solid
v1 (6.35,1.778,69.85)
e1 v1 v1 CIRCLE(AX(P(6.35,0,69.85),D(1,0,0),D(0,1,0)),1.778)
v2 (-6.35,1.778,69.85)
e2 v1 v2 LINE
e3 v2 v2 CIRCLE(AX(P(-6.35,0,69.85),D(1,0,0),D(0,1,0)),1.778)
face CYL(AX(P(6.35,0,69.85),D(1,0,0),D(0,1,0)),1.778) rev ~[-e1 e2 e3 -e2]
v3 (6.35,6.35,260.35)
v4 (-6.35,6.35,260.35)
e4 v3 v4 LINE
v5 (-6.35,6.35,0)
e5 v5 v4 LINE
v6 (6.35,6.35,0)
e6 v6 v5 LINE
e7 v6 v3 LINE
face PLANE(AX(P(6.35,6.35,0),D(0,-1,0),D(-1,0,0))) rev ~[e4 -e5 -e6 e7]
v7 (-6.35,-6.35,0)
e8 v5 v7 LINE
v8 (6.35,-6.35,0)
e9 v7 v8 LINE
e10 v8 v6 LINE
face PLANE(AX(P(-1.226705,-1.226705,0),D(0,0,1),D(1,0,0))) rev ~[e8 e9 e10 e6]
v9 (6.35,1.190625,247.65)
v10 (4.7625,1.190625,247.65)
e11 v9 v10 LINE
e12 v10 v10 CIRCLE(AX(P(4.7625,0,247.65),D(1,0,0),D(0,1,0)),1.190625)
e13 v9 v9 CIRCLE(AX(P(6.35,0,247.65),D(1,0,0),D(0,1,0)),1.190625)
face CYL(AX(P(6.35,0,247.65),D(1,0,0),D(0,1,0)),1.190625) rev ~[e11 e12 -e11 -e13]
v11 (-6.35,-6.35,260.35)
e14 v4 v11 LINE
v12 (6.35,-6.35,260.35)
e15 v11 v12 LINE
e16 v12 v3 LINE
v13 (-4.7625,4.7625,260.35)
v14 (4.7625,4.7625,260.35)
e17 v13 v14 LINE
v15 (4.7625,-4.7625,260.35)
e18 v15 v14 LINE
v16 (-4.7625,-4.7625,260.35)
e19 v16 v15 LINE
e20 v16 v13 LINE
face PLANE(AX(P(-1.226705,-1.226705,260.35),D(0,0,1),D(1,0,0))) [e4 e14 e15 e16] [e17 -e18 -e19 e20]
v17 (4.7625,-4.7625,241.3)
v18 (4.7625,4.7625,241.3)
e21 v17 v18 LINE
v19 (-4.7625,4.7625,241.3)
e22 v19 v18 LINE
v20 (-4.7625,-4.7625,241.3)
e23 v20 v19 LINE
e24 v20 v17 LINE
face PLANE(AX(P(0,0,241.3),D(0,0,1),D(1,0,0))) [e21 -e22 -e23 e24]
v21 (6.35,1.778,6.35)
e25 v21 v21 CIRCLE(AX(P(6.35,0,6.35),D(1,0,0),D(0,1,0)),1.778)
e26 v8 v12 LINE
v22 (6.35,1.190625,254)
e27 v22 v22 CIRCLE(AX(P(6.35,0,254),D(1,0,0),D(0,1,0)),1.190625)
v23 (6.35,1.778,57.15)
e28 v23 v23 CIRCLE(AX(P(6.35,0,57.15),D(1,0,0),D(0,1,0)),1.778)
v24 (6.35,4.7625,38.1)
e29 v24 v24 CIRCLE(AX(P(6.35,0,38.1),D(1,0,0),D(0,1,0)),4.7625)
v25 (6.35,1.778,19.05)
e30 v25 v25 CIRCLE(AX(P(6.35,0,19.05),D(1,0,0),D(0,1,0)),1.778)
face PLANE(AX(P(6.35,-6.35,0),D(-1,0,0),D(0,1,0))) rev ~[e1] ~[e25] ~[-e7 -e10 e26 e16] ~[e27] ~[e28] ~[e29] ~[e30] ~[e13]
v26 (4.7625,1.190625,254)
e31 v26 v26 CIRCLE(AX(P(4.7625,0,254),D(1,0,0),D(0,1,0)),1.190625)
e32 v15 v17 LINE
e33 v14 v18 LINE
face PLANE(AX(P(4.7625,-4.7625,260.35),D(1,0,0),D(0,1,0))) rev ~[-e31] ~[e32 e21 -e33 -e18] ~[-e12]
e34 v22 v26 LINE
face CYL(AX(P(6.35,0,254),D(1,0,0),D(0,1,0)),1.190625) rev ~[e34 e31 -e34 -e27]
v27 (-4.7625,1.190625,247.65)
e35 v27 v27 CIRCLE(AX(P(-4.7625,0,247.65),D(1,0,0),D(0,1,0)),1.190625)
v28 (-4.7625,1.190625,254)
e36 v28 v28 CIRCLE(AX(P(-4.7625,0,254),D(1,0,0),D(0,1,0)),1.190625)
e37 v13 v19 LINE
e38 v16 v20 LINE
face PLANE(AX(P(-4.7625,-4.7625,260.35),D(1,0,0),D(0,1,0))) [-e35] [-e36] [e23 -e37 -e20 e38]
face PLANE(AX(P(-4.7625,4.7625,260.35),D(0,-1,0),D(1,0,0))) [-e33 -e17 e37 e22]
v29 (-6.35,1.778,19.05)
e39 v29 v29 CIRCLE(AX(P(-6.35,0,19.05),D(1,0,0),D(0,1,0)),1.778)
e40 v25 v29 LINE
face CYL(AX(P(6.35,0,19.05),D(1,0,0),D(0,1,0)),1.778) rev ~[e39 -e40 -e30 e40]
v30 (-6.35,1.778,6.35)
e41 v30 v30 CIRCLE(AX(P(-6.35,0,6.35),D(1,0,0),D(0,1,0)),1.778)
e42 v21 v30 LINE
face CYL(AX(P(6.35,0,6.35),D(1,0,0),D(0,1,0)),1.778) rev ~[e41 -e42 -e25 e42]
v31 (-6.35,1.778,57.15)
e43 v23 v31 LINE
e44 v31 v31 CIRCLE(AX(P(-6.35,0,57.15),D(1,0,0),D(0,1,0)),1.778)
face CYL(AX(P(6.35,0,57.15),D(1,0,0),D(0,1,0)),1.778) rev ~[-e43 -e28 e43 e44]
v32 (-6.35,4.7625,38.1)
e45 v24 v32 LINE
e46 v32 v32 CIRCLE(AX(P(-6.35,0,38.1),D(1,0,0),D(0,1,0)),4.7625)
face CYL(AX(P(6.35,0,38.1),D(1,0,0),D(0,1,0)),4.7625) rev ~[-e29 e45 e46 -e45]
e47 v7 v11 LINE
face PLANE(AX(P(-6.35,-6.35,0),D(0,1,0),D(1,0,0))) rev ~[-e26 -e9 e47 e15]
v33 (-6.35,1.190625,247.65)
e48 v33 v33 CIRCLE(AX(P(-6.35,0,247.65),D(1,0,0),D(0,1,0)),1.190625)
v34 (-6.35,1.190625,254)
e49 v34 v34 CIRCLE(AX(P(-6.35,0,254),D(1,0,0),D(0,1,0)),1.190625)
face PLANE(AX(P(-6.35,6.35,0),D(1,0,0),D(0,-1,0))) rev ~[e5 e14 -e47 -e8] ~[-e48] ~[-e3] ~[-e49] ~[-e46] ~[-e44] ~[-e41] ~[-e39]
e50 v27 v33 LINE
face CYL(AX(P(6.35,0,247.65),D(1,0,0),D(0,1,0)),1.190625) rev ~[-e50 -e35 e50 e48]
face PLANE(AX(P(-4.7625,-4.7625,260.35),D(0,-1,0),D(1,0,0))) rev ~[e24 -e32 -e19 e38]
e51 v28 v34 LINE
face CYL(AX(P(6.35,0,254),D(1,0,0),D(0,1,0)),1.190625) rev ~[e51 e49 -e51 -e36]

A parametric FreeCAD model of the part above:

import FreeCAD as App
import Part
import Sketcher

V = App.Vector
Q = App.Units.Quantity


def add_polygon(sketch, points):
    """Adds a closed chain of lines whose ends are joined by coincident constraints."""
    first, n = sketch.GeometryCount, len(points)
    for a, b in zip(points, points[1:] + points[:1]):
        sketch.addGeometry(Part.LineSegment(App.Vector(*a, 0), App.Vector(*b, 0)), False)
    for i in range(n):
        sketch.addConstraint(Sketcher.Constraint("Coincident", first + i, 2, first + (i + 1) % n, 1))

doc = App.newDocument("Part")
params = doc.addObject("Spreadsheet::Sheet", "Params")
for row, (alias, value) in enumerate([
    ("sketch1_width", "0.5 in"),
    ("pad1_length", "10.25 in"),
    ("sketch2_diameter", "0.09375 in"),
    ("sketch3_diameter", "0.14 in"),
    ("sketch3_diameter2", "0.375 in"),
    ("sketch4_width", "0.375 in"),
    ("pocket3_length", "0.75 in"),
], start=1):
    params.set(f"A{row}", alias)
    params.set(f"B{row}", "=" + value)
    params.setAlias(f"B{row}", alias)

body = doc.addObject("PartDesign::Body", "Body")

# Sketch on XY plane
sketch1 = body.newObject("Sketcher::SketchObject", "Sketch")
sketch1.AttachmentSupport = (doc.getObject("XY_Plane"), [""])
sketch1.MapMode = "FlatFace"
add_polygon(sketch1, [(-6, 6), (-6, -6), (6, -6), (6, 6)])  # lines 0-3
sketch1.addConstraint(Sketcher.Constraint("Vertical", 0))
sketch1.addConstraint(Sketcher.Constraint("Horizontal", 1))
sketch1.addConstraint(Sketcher.Constraint("Vertical", 2))
sketch1.addConstraint(Sketcher.Constraint("Horizontal", 3))
sketch1.addConstraint(Sketcher.Constraint("Symmetric", 0, 2, 2, 2, -1, 1))
sketch1.addConstraint(Sketcher.Constraint("Equal", 3, 0))
sketch1.addConstraint(Sketcher.Constraint("DistanceX", 1, 1, 1, 2, Q("0.5 in")))
sketch1.setExpression("Constraints[10]", "Params.sketch1_width")
pad1 = body.newObject("PartDesign::Pad", "Pad")
pad1.Profile = sketch1
pad1.setExpression("Length", "Params.pad1_length")

# Sketch on YZ plane
sketch2 = body.newObject("Sketcher::SketchObject", "Sketch001")
sketch2.AttachmentSupport = (doc.getObject("YZ_Plane"), [""])
sketch2.MapMode = "FlatFace"
sketch2.AttachmentOffset = App.Placement(V(0, 0, 0.25 * 25.4), App.Rotation())
sketch2.addGeometry(Part.Circle(V(0, 254, 0), V(0, 0, 1), 1.2), False)
sketch2.addGeometry(Part.Circle(V(0, 247.7, 0), V(0, 0, 1), 1.2), False)
sketch2.addConstraint(Sketcher.Constraint("Equal", 0, 1))
sketch2.addConstraint(Sketcher.Constraint("PointOnObject", 0, 3, -2))
sketch2.addConstraint(Sketcher.Constraint("PointOnObject", 1, 3, -2))
sketch2.addConstraint(Sketcher.Constraint("Diameter", 0, Q("0.09375 in")))
sketch2.addConstraint(Sketcher.Constraint("DistanceY", -1, 1, 0, 3, Q("10 in")))
sketch2.addConstraint(Sketcher.Constraint("DistanceY", -1, 1, 1, 3, Q("9.75 in")))
sketch2.setExpression("Constraints[3]", "Params.sketch2_diameter")
pocket1 = body.newObject("PartDesign::Pocket", "Pocket")
pocket1.Profile = sketch2
pocket1.Type = "ThroughAll"

# Sketch on YZ plane
sketch3 = body.newObject("Sketcher::SketchObject", "Sketch002")
sketch3.AttachmentSupport = (doc.getObject("YZ_Plane"), [""])
sketch3.MapMode = "FlatFace"
sketch3.AttachmentOffset = App.Placement(V(0, 0, 0.25 * 25.4), App.Rotation())
sketch3.addGeometry(Part.Circle(V(0, 38.1, 0), V(0, 0, 1), 4.8), False)
sketch3.addGeometry(Part.Circle(V(0, 57.1, 0), V(0, 0, 1), 1.8), False)
sketch3.addGeometry(Part.Circle(V(0, 69.8, 0), V(0, 0, 1), 1.8), False)
sketch3.addGeometry(Part.Circle(V(0, 19.1, 0), V(0, 0, 1), 1.8), False)
sketch3.addGeometry(Part.Circle(V(0, 6.3, 0), V(0, 0, 1), 1.8), False)
sketch3.addConstraint(Sketcher.Constraint("Equal", 1, 2))
sketch3.addConstraint(Sketcher.Constraint("Equal", 2, 3))
sketch3.addConstraint(Sketcher.Constraint("Equal", 3, 4))
sketch3.addConstraint(Sketcher.Constraint("PointOnObject", 0, 3, -2))
sketch3.addConstraint(Sketcher.Constraint("PointOnObject", 1, 3, -2))
sketch3.addConstraint(Sketcher.Constraint("PointOnObject", 2, 3, -2))
sketch3.addConstraint(Sketcher.Constraint("PointOnObject", 3, 3, -2))
sketch3.addConstraint(Sketcher.Constraint("PointOnObject", 4, 3, -2))
sketch3.addConstraint(Sketcher.Constraint("Diameter", 1, Q("0.14 in")))
sketch3.addConstraint(Sketcher.Constraint("Diameter", 0, Q("0.375 in")))
sketch3.addConstraint(Sketcher.Constraint("DistanceY", 3, 3, 2, 3, Q("2 in")))
sketch3.addConstraint(Sketcher.Constraint("DistanceY", 4, 3, 1, 3, Q("2 in")))
sketch3.addConstraint(Sketcher.Constraint("DistanceY", -1, 1, 0, 3, Q("1.5 in")))
sketch3.addConstraint(Sketcher.Constraint("DistanceY", 1, 3, 2, 3, Q("0.5 in")))
sketch3.addConstraint(Sketcher.Constraint("DistanceY", -1, 1, 1, 3, Q("2.25 in")))
sketch3.setExpression("Constraints[8]", "Params.sketch3_diameter")
sketch3.setExpression("Constraints[9]", "Params.sketch3_diameter2")
pocket2 = body.newObject("PartDesign::Pocket", "Pocket001")
pocket2.Profile = sketch3
pocket2.Type = "ThroughAll"

# Sketch on XY plane
sketch4 = body.newObject("Sketcher::SketchObject", "Sketch003")
sketch4.AttachmentSupport = (doc.getObject("XY_Plane"), [""])
sketch4.MapMode = "FlatFace"
sketch4.AttachmentOffset = App.Placement(V(0, 0, 10.25 * 25.4), App.Rotation())
add_polygon(sketch4, [(-5, 5), (-5, -5), (5, -5), (5, 5)])  # lines 0-3
sketch4.addConstraint(Sketcher.Constraint("Vertical", 0))
sketch4.addConstraint(Sketcher.Constraint("Horizontal", 1))
sketch4.addConstraint(Sketcher.Constraint("Vertical", 2))
sketch4.addConstraint(Sketcher.Constraint("Horizontal", 3))
sketch4.addConstraint(Sketcher.Constraint("Symmetric", 0, 2, 2, 2, -1, 1))
sketch4.addConstraint(Sketcher.Constraint("Equal", 3, 0))
sketch4.addConstraint(Sketcher.Constraint("DistanceX", 1, 1, 1, 2, Q("0.375 in")))
sketch4.setExpression("Constraints[10]", "Params.sketch4_width")
pocket3 = body.newObject("PartDesign::Pocket", "Pocket002")
pocket3.Profile = sketch4
pocket3.setExpression("Length", "Params.pocket3_length")

doc.recompute()
